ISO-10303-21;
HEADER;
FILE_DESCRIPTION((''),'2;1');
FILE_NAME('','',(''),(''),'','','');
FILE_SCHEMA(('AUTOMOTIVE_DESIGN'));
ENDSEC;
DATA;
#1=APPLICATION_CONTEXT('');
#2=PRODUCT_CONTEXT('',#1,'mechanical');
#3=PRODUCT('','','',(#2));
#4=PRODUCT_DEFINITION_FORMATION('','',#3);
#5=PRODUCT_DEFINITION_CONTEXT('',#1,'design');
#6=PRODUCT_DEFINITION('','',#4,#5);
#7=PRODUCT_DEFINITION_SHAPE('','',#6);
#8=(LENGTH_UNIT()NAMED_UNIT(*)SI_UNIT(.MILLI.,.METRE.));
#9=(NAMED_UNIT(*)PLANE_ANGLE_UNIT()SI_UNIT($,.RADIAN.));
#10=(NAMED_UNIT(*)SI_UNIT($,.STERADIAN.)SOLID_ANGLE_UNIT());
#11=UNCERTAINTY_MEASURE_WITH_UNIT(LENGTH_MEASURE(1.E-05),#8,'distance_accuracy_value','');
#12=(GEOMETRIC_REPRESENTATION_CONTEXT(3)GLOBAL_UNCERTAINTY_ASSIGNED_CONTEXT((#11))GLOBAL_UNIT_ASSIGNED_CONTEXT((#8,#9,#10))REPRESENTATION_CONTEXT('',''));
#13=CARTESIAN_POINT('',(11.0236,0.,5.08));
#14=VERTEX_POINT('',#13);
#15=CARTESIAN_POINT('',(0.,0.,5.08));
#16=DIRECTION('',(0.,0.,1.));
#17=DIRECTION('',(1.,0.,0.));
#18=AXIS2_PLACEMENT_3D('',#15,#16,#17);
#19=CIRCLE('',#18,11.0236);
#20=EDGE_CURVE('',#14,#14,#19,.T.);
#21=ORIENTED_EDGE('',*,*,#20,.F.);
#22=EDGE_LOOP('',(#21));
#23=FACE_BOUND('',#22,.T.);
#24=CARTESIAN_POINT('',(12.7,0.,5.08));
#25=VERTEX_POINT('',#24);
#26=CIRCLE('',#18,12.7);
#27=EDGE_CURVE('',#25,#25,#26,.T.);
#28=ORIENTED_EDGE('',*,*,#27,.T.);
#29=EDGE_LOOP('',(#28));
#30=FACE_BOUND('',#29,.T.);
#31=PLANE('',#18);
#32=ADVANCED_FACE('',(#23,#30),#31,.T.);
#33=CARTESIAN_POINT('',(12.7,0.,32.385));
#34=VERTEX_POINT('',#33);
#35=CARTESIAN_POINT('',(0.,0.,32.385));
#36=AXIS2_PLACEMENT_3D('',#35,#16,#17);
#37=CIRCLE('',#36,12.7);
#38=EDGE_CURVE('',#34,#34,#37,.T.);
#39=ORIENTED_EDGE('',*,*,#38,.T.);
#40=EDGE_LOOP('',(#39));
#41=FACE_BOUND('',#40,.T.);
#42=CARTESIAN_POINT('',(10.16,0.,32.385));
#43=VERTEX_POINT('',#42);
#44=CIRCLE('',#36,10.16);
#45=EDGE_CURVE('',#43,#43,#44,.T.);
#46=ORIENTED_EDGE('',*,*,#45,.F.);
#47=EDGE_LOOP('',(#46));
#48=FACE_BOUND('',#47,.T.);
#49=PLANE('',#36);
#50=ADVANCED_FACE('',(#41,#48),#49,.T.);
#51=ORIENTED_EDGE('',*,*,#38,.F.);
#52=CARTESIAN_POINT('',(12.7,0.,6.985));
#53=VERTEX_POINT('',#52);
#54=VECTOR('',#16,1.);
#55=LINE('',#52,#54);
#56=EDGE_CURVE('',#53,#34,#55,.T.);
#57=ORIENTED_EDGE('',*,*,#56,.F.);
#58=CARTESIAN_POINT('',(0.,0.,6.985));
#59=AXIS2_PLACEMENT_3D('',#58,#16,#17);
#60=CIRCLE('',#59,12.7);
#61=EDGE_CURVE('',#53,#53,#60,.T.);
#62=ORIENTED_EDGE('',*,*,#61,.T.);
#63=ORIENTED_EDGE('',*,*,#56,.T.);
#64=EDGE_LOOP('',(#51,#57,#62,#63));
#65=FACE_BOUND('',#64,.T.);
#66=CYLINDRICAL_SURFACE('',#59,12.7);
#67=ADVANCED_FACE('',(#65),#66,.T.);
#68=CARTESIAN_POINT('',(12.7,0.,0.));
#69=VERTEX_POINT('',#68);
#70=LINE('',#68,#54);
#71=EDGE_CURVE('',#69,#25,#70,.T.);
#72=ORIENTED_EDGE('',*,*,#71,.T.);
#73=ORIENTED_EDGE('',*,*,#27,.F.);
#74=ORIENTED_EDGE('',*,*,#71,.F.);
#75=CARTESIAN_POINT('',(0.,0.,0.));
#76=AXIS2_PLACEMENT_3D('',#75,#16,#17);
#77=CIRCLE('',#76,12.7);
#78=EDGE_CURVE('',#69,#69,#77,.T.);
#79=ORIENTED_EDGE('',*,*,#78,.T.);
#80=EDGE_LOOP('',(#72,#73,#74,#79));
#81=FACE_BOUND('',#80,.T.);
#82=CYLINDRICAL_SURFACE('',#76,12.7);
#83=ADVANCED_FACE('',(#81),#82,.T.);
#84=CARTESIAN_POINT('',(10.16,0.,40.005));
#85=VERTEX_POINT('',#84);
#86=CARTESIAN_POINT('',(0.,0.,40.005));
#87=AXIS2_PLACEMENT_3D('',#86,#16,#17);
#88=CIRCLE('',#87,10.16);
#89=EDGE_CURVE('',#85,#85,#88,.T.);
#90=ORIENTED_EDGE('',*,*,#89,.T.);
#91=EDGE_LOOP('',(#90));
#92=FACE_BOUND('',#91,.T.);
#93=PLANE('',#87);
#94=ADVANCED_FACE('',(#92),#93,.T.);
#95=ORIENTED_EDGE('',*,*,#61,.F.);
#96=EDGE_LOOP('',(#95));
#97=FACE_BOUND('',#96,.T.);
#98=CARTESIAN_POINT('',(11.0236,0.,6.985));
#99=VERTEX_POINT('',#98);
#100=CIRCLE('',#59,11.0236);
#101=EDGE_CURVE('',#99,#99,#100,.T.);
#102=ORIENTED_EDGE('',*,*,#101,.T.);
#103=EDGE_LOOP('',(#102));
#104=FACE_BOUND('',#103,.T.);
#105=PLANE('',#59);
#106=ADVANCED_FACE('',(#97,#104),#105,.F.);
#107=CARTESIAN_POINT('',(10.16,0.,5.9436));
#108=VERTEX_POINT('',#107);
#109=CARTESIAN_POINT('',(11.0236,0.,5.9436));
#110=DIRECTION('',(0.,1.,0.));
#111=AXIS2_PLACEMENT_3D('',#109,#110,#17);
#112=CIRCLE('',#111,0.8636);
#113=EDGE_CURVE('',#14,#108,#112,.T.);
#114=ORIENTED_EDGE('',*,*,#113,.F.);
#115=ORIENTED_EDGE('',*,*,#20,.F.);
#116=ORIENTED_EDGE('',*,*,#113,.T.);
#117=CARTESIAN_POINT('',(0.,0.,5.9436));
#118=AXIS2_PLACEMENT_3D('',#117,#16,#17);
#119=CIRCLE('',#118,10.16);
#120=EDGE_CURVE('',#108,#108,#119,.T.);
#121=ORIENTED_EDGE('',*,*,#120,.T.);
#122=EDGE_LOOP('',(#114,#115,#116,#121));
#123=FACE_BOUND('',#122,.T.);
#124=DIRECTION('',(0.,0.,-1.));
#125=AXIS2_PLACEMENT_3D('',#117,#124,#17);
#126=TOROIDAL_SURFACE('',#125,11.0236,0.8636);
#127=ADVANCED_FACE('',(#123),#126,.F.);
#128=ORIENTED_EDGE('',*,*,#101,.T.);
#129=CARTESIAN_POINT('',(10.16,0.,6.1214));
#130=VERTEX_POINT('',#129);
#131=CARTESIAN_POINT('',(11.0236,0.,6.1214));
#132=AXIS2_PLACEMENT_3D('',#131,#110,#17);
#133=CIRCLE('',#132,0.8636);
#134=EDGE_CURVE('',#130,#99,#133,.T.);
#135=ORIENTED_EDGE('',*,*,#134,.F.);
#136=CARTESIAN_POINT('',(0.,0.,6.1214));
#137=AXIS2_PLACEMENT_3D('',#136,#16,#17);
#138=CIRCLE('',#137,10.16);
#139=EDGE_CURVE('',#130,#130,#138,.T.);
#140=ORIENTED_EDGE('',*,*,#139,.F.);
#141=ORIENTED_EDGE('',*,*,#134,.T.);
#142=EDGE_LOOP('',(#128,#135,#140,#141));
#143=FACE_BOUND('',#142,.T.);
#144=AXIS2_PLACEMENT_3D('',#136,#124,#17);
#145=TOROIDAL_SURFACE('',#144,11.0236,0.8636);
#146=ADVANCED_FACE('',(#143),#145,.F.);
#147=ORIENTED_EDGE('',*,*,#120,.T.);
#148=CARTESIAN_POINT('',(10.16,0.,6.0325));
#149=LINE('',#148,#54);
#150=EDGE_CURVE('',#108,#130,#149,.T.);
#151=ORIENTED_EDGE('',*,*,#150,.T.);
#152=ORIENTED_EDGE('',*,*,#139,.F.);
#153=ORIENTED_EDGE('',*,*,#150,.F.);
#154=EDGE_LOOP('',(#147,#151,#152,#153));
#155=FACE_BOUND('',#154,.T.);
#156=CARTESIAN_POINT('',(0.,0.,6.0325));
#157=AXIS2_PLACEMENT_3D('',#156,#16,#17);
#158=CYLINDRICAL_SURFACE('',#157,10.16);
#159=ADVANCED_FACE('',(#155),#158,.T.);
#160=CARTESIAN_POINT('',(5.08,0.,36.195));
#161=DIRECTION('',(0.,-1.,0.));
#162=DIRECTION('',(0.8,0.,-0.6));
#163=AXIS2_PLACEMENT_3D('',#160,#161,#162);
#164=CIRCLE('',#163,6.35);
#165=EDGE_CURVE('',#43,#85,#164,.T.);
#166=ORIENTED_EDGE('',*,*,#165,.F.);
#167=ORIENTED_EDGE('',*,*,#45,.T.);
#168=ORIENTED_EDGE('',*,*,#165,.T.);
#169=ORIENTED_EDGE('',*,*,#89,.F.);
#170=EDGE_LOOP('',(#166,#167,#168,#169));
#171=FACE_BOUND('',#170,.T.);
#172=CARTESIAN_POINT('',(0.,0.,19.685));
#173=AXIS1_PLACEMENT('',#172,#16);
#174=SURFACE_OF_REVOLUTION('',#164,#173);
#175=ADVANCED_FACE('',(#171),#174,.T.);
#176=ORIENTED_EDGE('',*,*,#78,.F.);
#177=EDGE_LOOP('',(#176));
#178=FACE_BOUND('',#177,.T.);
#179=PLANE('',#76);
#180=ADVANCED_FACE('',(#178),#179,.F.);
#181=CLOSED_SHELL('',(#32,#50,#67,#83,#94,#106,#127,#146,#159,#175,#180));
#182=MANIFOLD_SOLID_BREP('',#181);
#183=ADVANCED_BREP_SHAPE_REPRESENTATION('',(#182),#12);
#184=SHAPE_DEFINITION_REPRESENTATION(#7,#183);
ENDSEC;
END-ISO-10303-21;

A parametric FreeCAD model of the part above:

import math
import FreeCAD as App
import Part
import Sketcher

V = App.Vector
Q = App.Units.Quantity


def edges_at(feature, points):
    """Names of the edges that pass closest to the given points."""
    edges = feature.Shape.Edges
    near = lambda p: min(range(len(edges)), key=lambda i: edges[i].distToShape(Part.Vertex(*p))[0])
    return sorted({f"Edge{near(p) + 1}" for p in points})

doc = App.newDocument("Part")
body = doc.addObject("PartDesign::Body", "Body")

sketch1 = body.newObject("Sketcher::SketchObject", "Sketch")
sketch1.AttachmentSupport = (doc.getObject("XZ_Plane"), [""])
sketch1.MapMode = "FlatFace"
sketch1.addGeometry(Part.LineSegment(V(0, 40, 0), V(0, 0, 0)), False)
sketch1.addGeometry(Part.LineSegment(V(0, 0, 0), V(12.7, 0, 0)), False)
sketch1.addGeometry(Part.LineSegment(V(12.7, 0, 0), V(12.7, 5.1, 0)), False)
sketch1.addGeometry(Part.LineSegment(V(12.7, 5.1, 0), V(10.2, 5.1, 0)), False)
sketch1.addGeometry(Part.LineSegment(V(10.2, 5.1, 0), V(10.2, 7, 0)), False)
sketch1.addGeometry(Part.LineSegment(V(10.2, 7, 0), V(12.7, 7, 0)), False)
sketch1.addGeometry(Part.LineSegment(V(12.7, 7, 0), V(12.7, 32.4, 0)), False)
sketch1.addGeometry(Part.LineSegment(V(12.7, 32.4, 0), V(10.2, 32.4, 0)), False)
sketch1.addGeometry(Part.ArcOfCircle(Part.Circle(V(5.1, 36.2, 0), V(0, 0, 1), 6.3), math.radians(-37), math.radians(37)), False)
sketch1.addGeometry(Part.LineSegment(V(10.2, 40, 0), V(0, 40, 0)), False)
sketch1.addConstraint(Sketcher.Constraint("Coincident", 0, 2, 1, 1))
sketch1.addConstraint(Sketcher.Constraint("Coincident", 1, 2, 2, 1))
sketch1.addConstraint(Sketcher.Constraint("Coincident", 2, 2, 3, 1))
sketch1.addConstraint(Sketcher.Constraint("Coincident", 3, 2, 4, 1))
sketch1.addConstraint(Sketcher.Constraint("Coincident", 4, 2, 5, 1))
sketch1.addConstraint(Sketcher.Constraint("Coincident", 5, 2, 6, 1))
sketch1.addConstraint(Sketcher.Constraint("Coincident", 6, 2, 7, 1))
sketch1.addConstraint(Sketcher.Constraint("Coincident", 7, 2, 8, 1))
sketch1.addConstraint(Sketcher.Constraint("Coincident", 8, 2, 9, 1))
sketch1.addConstraint(Sketcher.Constraint("Coincident", 9, 2, 0, 1))
sketch1.addConstraint(Sketcher.Constraint("Vertical", 0))
sketch1.addConstraint(Sketcher.Constraint("Horizontal", 1))
sketch1.addConstraint(Sketcher.Constraint("Vertical", 2))
sketch1.addConstraint(Sketcher.Constraint("Horizontal", 3))
sketch1.addConstraint(Sketcher.Constraint("Vertical", 4))
sketch1.addConstraint(Sketcher.Constraint("Horizontal", 5))
sketch1.addConstraint(Sketcher.Constraint("Vertical", 6))
sketch1.addConstraint(Sketcher.Constraint("Horizontal", 7))
sketch1.addConstraint(Sketcher.Constraint("Horizontal", 9))
sketch1.addConstraint(Sketcher.Constraint("Coincident", 0, 2, -1, 1))
sketch1.addConstraint(Sketcher.Constraint("Vertical", 2, 2, 5, 2))
sketch1.addConstraint(Sketcher.Constraint("Vertical", 4, 2, 7, 2))
sketch1.addConstraint(Sketcher.Constraint("Vertical", 7, 2, 8, 2))
sketch1.addConstraint(Sketcher.Constraint("DistanceY", 6, 1, 6, 2, Q("1 in")))
sketch1.addConstraint(Sketcher.Constraint("Radius", 8, Q("0.25 in")))
sketch1.addConstraint(Sketcher.Constraint("DistanceX", 1, 1, 1, 2, Q("0.5 in")))
sketch1.addConstraint(Sketcher.Constraint("DistanceX", 3, 2, 3, 1, Q("0.1 in")))
sketch1.addConstraint(Sketcher.Constraint("DistanceY", 2, 1, 2, 2, Q("0.2 in")))
sketch1.addConstraint(Sketcher.Constraint("DistanceX", -1, 1, 8, 3, Q("0.2 in")))
sketch1.addConstraint(Sketcher.Constraint("DistanceY", 0, 2, 0, 1, Q("1.575 in")))
revolution = body.newObject("PartDesign::Revolution", "Revolution")
revolution.Profile = sketch1
revolution.ReferenceAxis = (sketch1, ["V_Axis"])
revolution.Angle = 360
doc.recompute()

fillet = body.newObject("PartDesign::Fillet", "Fillet")
fillet.Base = (revolution, edges_at(revolution, [(-10.16, 0, 6.985), (-10.16, 0, 5.08)]))
fillet.Radius = Q("0.034 in")

doc.recompute()
